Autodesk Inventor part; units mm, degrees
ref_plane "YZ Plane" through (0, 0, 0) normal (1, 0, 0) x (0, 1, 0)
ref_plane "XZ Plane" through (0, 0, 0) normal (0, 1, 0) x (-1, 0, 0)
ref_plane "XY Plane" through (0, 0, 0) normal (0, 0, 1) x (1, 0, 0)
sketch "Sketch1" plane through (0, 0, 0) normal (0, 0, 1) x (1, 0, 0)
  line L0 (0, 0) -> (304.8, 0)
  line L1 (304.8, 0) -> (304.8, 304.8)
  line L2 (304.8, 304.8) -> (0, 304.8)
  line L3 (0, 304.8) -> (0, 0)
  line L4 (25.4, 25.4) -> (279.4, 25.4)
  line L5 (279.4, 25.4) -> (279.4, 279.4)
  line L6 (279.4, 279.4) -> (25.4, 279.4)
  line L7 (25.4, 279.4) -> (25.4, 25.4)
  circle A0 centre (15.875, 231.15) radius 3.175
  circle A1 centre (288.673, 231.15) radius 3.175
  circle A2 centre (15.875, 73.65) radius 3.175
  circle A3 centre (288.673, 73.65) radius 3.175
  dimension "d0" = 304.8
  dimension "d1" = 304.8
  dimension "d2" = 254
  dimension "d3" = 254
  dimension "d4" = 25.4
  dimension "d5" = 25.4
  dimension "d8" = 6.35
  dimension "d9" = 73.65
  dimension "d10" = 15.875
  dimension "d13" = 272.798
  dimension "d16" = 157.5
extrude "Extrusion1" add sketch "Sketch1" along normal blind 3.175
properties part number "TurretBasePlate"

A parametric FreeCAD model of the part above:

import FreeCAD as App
import Part
import Sketcher

V = App.Vector
Q = App.Units.Quantity


def add_polygon(sketch, points):
    """Adds a closed chain of lines whose ends are joined by coincident constraints."""
    first, n = sketch.GeometryCount, len(points)
    for a, b in zip(points, points[1:] + points[:1]):
        sketch.addGeometry(Part.LineSegment(App.Vector(*a, 0), App.Vector(*b, 0)), False)
    for i in range(n):
        sketch.addConstraint(Sketcher.Constraint("Coincident", first + i, 2, first + (i + 1) % n, 1))

doc = App.newDocument("Part")
body = doc.addObject("PartDesign::Body", "Body")

sketch1 = body.newObject("Sketcher::SketchObject", "Sketch")
sketch1.AttachmentSupport = (doc.getObject("XY_Plane"), [""])
sketch1.MapMode = "FlatFace"
add_polygon(sketch1, [(0, 304.8), (0, 0), (304.8, 0), (304.8, 304.8)])
sketch1.addGeometry(Part.Circle(V(15.9, 73.7, 0), V(0, 0, 1), 3.2), False)
add_polygon(sketch1, [(279.4, 25.4), (25.4, 25.4), (25.4, 279.4), (279.4, 279.4)])
sketch1.addGeometry(Part.Circle(V(288.7, 73.7, 0), V(0, 0, 1), 3.2), False)
sketch1.addGeometry(Part.Circle(V(15.9, 231.2, 0), V(0, 0, 1), 3.2), False)
sketch1.addGeometry(Part.Circle(V(288.7, 231.2, 0), V(0, 0, 1), 3.2), False)
sketch1.addConstraint([
    Sketcher.Constraint("Vertical", 0),
    Sketcher.Constraint("Horizontal", 1),
    Sketcher.Constraint("Vertical", 2),
    Sketcher.Constraint("Horizontal", 3),
    Sketcher.Constraint("Horizontal", 5),
    Sketcher.Constraint("Vertical", 6),
    Sketcher.Constraint("Horizontal", 7),
    Sketcher.Constraint("Vertical", 8),
    Sketcher.Constraint("Coincident", 0, 2, -1, 1),
    Sketcher.Constraint("Equal", 4, 9),
    Sketcher.Constraint("Equal", 9, 10),
    Sketcher.Constraint("Equal", 10, 11),
    Sketcher.Constraint("Horizontal", 4, 3, 9, 3),
    Sketcher.Constraint("Horizontal", 10, 3, 11, 3),
    Sketcher.Constraint("Vertical", 4, 3, 10, 3),
    Sketcher.Constraint("Vertical", 9, 3, 11, 3),
    Sketcher.Constraint("Equal", 3, 0),
    Sketcher.Constraint("Equal", 7, 6),
    Sketcher.Constraint("Diameter", 4, Q("0.25 in")),
    Sketcher.Constraint("DistanceX", 1, 1, 1, 2, Q("12 in")),
    Sketcher.Constraint("DistanceX", 5, 2, 5, 1, Q("10 in")),
    Sketcher.Constraint("DistanceX", -1, 1, 5, 2, Q("1 in")),
    Sketcher.Constraint("DistanceY", -1, 1, 5, 2, Q("1 in")),
    Sketcher.Constraint("DistanceX", -1, 1, 4, 3, Q("0.625 in")),
    Sketcher.Constraint("DistanceY", -1, 1, 4, 3, Q("2.8996 in")),
    Sketcher.Constraint("DistanceY", 11, 3, 2, 2, Q("2.8996 in")),
    Sketcher.Constraint("DistanceX", 4, 3, 9, 3, Q("272.798 mm")),
])
pad1 = body.newObject("PartDesign::Pad", "Pad")
pad1.Profile = sketch1
pad1.Length = Q("0.125 in")

doc.recompute()
